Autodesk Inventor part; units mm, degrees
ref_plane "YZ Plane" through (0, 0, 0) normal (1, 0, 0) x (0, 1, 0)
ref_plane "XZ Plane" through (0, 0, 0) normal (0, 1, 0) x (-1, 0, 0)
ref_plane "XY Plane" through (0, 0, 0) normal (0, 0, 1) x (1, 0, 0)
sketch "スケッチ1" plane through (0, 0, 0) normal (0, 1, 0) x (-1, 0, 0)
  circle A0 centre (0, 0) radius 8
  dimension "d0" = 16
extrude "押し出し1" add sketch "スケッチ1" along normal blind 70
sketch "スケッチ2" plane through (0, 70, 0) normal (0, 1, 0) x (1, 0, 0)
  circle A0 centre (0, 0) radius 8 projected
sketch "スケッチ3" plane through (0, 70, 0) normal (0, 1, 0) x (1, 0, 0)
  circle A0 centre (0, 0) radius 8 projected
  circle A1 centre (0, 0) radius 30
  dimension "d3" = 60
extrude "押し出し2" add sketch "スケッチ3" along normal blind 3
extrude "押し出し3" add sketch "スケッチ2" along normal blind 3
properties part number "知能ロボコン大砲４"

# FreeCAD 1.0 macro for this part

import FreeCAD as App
import Part
import Sketcher
Q = App.Units.Quantity

doc = App.newDocument("Part")
body = doc.addObject("PartDesign::Body", "Body")
body.AllowCompound = True

# Sketch on XZ plane
sketch1 = doc.addObject("Sketcher::SketchObject", "Sketch")
body.addObject(sketch1)
sketch1.AttachmentSupport = (doc.XZ_Plane, [""])
sketch1.MapMode = "FlatFace"
sketch1.addGeometry(Part.Circle(App.Vector(0, 0, 0), App.Vector(0, 0, 1), 8), False)
sketch1.addConstraint([
    Sketcher.Constraint("Coincident", 0, 3, -1, 1),
    Sketcher.Constraint("Diameter", 0, Q("16 mm")),
])
pad1 = doc.addObject("PartDesign::Pad", "Pad")
body.addObject(pad1)
pad1.Profile = sketch1
pad1.Length = 70
pad1.Reversed = True

# Sketch on XZ plane
sketch2 = doc.addObject("Sketcher::SketchObject", "Sketch001")
body.addObject(sketch2)
sketch2.AttachmentSupport = (doc.XZ_Plane, [""])
sketch2.MapMode = "FlatFace"
sketch2.AttachmentOffset = App.Placement(App.Vector(0, 0, -70), App.Rotation())
sketch2.addGeometry([
    Part.Circle(App.Vector(0, 0, 0), App.Vector(0, 0, 1), 30),
    Part.Circle(App.Vector(0, 0, 0), App.Vector(0, 0, 1), 8),
], False)
sketch2.addConstraint([
    Sketcher.Constraint("Coincident", 0, 3, -1, 1),
    Sketcher.Constraint("Coincident", 1, 3, -1, 1),
    Sketcher.Constraint("Diameter", 0, Q("60 mm")),
    Sketcher.Constraint("Diameter", 1, Q("16 mm")),
])
pad2 = doc.addObject("PartDesign::Pad", "Pad001")
body.addObject(pad2)
pad2.Profile = sketch2
pad2.Length = 3
pad2.Reversed = True

# Sketch on XZ plane
sketch3 = doc.addObject("Sketcher::SketchObject", "Sketch002")
body.addObject(sketch3)
sketch3.AttachmentSupport = (doc.XZ_Plane, [""])
sketch3.MapMode = "FlatFace"
sketch3.AttachmentOffset = App.Placement(App.Vector(0, 0, -70), App.Rotation())
sketch3.addGeometry(Part.Circle(App.Vector(0, 0, 0), App.Vector(0, 0, 1), 8), False)
sketch3.addConstraint([
    Sketcher.Constraint("Coincident", 0, 3, -1, 1),
    Sketcher.Constraint("Diameter", 0, Q("16 mm")),
])
pad3 = doc.addObject("PartDesign::Pad", "Pad002")
body.addObject(pad3)
pad3.Profile = sketch3
pad3.Length = 3
pad3.Reversed = True

doc.recompute()
